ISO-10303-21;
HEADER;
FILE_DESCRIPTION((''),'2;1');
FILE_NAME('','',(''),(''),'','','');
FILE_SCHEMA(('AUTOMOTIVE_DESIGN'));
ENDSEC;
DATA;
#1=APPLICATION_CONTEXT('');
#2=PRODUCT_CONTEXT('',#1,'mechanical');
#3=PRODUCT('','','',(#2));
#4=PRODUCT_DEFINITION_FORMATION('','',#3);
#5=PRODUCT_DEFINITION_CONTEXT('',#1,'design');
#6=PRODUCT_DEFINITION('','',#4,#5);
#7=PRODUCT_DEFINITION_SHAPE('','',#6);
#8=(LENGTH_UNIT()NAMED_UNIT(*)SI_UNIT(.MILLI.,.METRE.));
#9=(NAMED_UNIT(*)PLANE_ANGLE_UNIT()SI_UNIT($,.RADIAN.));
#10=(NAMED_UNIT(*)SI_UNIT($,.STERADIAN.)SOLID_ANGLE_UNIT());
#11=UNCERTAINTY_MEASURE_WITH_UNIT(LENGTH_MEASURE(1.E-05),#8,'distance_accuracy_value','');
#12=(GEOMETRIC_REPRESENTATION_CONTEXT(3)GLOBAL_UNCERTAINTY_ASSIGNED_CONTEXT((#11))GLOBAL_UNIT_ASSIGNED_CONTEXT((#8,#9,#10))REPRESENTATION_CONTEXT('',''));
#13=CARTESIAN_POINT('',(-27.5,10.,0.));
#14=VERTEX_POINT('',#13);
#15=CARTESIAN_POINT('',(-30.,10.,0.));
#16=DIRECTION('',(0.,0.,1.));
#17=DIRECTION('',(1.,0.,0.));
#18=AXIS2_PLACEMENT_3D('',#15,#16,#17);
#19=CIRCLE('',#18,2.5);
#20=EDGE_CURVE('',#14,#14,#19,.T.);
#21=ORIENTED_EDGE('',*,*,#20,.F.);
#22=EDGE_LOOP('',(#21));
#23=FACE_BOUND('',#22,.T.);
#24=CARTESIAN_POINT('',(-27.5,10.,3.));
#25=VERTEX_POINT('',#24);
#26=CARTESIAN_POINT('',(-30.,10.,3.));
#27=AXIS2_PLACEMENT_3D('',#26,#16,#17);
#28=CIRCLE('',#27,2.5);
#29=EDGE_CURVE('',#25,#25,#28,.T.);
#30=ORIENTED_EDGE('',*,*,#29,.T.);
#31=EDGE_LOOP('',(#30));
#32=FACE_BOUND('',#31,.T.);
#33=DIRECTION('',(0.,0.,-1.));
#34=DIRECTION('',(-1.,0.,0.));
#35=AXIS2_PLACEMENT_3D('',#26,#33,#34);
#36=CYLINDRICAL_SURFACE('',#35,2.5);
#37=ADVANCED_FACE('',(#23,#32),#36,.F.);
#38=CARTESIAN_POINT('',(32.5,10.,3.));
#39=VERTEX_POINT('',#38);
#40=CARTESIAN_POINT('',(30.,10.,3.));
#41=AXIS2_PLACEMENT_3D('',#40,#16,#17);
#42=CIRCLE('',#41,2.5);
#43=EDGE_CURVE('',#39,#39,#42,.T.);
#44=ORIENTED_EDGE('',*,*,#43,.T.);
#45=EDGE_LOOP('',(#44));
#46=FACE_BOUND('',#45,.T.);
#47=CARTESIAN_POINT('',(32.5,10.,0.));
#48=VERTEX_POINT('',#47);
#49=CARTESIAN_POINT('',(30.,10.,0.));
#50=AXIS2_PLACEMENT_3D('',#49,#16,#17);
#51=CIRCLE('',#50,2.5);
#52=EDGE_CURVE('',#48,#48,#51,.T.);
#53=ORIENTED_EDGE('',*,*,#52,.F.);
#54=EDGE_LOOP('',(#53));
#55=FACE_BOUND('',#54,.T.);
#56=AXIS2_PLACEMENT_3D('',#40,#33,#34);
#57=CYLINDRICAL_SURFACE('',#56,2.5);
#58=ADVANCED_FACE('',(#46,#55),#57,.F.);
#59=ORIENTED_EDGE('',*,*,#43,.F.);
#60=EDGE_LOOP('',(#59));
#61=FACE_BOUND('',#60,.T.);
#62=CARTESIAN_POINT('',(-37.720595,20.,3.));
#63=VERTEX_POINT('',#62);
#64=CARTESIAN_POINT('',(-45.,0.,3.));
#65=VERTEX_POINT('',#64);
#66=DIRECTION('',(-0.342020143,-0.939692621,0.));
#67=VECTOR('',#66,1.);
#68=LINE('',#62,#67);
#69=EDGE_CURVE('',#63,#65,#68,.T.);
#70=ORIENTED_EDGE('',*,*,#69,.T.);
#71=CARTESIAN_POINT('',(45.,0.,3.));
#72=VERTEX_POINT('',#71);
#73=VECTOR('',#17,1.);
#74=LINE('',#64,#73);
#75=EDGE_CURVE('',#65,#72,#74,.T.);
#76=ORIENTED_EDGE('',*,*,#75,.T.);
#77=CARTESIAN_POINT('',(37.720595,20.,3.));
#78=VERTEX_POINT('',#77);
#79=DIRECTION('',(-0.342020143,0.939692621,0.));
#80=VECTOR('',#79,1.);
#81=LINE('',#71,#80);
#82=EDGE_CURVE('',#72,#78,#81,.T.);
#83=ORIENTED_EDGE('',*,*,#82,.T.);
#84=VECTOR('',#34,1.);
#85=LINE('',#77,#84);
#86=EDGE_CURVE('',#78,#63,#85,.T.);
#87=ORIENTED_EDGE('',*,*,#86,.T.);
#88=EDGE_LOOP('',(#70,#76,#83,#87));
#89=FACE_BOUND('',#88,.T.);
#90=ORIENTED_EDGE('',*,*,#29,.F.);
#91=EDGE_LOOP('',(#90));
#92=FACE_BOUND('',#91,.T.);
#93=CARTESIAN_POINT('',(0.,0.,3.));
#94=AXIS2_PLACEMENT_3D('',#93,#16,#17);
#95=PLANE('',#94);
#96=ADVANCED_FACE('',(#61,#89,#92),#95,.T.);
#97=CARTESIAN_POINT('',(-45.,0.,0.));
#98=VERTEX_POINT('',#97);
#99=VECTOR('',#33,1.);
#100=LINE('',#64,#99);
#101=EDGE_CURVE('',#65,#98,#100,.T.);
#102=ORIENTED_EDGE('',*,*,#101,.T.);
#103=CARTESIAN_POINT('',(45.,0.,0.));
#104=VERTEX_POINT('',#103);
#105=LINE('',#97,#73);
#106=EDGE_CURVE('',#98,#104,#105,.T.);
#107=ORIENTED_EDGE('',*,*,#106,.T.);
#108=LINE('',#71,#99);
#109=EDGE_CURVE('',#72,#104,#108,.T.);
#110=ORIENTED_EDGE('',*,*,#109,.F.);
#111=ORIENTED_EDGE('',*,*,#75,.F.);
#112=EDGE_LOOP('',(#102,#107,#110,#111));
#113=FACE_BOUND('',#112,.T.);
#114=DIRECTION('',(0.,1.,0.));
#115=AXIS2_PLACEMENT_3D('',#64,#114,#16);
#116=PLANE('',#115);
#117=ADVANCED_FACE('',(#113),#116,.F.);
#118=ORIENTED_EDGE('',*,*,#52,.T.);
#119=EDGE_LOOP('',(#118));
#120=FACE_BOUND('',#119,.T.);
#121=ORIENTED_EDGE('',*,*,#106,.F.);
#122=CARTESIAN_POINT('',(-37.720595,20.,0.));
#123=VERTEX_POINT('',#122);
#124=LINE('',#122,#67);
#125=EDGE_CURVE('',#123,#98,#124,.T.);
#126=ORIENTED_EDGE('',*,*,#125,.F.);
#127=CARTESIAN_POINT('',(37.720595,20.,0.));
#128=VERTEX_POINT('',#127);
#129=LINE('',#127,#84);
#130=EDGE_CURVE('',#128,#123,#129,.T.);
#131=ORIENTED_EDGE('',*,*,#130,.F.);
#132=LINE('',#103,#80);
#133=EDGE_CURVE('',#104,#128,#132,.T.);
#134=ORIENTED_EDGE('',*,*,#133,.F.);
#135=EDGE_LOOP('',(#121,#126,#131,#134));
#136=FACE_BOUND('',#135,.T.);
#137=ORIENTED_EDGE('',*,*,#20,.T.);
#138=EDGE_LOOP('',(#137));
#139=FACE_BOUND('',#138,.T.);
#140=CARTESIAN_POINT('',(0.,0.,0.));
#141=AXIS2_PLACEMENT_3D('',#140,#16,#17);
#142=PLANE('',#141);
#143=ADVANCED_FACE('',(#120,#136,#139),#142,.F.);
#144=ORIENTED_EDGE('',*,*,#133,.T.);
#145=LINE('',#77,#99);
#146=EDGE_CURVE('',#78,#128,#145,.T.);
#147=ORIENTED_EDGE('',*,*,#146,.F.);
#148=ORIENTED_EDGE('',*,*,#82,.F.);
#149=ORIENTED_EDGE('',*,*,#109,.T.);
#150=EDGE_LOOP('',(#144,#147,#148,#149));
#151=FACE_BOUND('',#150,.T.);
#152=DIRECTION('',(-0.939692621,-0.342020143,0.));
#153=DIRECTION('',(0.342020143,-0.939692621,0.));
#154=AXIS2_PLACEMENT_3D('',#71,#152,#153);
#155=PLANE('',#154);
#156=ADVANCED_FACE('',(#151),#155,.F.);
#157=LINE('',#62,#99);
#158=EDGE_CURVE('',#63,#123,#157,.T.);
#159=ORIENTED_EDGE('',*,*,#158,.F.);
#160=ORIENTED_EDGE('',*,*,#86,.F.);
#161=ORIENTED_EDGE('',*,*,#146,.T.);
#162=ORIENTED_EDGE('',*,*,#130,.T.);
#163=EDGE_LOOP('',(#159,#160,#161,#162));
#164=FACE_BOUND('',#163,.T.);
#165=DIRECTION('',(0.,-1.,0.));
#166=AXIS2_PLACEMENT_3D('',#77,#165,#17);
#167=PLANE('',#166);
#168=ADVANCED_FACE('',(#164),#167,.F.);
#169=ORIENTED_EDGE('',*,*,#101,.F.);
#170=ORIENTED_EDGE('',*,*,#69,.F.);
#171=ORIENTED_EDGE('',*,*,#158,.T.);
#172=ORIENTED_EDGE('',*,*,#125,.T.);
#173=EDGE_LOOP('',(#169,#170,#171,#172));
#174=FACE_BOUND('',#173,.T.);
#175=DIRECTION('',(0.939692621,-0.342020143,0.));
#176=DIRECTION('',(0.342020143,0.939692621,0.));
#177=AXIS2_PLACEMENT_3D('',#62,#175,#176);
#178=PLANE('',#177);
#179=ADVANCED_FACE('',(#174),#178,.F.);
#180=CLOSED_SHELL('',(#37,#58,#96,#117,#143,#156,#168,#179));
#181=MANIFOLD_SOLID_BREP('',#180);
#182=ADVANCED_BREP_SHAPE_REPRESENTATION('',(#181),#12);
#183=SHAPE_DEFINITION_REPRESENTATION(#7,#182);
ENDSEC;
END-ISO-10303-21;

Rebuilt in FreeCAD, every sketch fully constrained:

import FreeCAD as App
import Part
import Sketcher

V = App.Vector
Q = App.Units.Quantity


def add_polygon(sketch, points):
    """Adds a closed chain of lines whose ends are joined by coincident constraints."""
    first, n = sketch.GeometryCount, len(points)
    for a, b in zip(points, points[1:] + points[:1]):
        sketch.addGeometry(Part.LineSegment(App.Vector(*a, 0), App.Vector(*b, 0)), False)
    for i in range(n):
        sketch.addConstraint(Sketcher.Constraint("Coincident", first + i, 2, first + (i + 1) % n, 1))

doc = App.newDocument("Part")
params = doc.addObject("Spreadsheet::Sheet", "Params")
for row, (alias, value) in enumerate([
    ("sketch1_diameter", "5 mm"),
    ("sketch1_width", "90 mm"),
    ("pad1_length", "3 mm"),
], start=1):
    params.set(f"A{row}", alias)
    params.set(f"B{row}", "=" + value)
    params.setAlias(f"B{row}", alias)

body = doc.addObject("PartDesign::Body", "Body")

# Sketch on XY plane
sketch1 = body.newObject("Sketcher::SketchObject", "Sketch")
sketch1.AttachmentSupport = (doc.getObject("XY_Plane"), [""])
sketch1.MapMode = "FlatFace"
add_polygon(sketch1, [(-45, 0), (45, 0), (37.7, 20), (-37.7, 20)])  # lines 0-3
sketch1.addGeometry(Part.Circle(V(-30, 10, 0), V(0, 0, 1), 2.5), False)  # 4
sketch1.addGeometry(Part.Circle(V(30, 10, 0), V(0, 0, 1), 2.5), False)  # 5
sketch1.addConstraint(Sketcher.Constraint("Horizontal", 0))
sketch1.addConstraint(Sketcher.Constraint("Horizontal", 2))
sketch1.addConstraint(Sketcher.Constraint("Equal", 4, 5))
sketch1.addConstraint(Sketcher.Constraint("Symmetric", 0, 2, 3, 2, -1, 1))
sketch1.addConstraint(Sketcher.Constraint("Symmetric", 4, 3, 5, 3, -2))
sketch1.addConstraint(Sketcher.Constraint("Equal", 1, 3))
sketch1.addConstraint(Sketcher.Constraint("Diameter", 4, 5.0))
sketch1.addConstraint(Sketcher.Constraint("DistanceX", 0, 1, 0, 2, 90.0))
sketch1.addConstraint(Sketcher.Constraint("Angle", 1, Q("110 deg")))
sketch1.addConstraint(Sketcher.Constraint("DistanceX", 4, 3, -1, 1, 30.0))
sketch1.addConstraint(Sketcher.Constraint("DistanceY", -1, 1, 4, 3, 10.0))
sketch1.addConstraint(Sketcher.Constraint("DistanceY", -1, 1, 1, 2, 20.0))
sketch1.setExpression("Constraints[10]", "Params.sketch1_diameter")
sketch1.setExpression("Constraints[11]", "Params.sketch1_width")
pad1 = body.newObject("PartDesign::Pad", "Pad")
pad1.Profile = sketch1
pad1.setExpression("Length", "Params.pad1_length")

doc.recompute()
